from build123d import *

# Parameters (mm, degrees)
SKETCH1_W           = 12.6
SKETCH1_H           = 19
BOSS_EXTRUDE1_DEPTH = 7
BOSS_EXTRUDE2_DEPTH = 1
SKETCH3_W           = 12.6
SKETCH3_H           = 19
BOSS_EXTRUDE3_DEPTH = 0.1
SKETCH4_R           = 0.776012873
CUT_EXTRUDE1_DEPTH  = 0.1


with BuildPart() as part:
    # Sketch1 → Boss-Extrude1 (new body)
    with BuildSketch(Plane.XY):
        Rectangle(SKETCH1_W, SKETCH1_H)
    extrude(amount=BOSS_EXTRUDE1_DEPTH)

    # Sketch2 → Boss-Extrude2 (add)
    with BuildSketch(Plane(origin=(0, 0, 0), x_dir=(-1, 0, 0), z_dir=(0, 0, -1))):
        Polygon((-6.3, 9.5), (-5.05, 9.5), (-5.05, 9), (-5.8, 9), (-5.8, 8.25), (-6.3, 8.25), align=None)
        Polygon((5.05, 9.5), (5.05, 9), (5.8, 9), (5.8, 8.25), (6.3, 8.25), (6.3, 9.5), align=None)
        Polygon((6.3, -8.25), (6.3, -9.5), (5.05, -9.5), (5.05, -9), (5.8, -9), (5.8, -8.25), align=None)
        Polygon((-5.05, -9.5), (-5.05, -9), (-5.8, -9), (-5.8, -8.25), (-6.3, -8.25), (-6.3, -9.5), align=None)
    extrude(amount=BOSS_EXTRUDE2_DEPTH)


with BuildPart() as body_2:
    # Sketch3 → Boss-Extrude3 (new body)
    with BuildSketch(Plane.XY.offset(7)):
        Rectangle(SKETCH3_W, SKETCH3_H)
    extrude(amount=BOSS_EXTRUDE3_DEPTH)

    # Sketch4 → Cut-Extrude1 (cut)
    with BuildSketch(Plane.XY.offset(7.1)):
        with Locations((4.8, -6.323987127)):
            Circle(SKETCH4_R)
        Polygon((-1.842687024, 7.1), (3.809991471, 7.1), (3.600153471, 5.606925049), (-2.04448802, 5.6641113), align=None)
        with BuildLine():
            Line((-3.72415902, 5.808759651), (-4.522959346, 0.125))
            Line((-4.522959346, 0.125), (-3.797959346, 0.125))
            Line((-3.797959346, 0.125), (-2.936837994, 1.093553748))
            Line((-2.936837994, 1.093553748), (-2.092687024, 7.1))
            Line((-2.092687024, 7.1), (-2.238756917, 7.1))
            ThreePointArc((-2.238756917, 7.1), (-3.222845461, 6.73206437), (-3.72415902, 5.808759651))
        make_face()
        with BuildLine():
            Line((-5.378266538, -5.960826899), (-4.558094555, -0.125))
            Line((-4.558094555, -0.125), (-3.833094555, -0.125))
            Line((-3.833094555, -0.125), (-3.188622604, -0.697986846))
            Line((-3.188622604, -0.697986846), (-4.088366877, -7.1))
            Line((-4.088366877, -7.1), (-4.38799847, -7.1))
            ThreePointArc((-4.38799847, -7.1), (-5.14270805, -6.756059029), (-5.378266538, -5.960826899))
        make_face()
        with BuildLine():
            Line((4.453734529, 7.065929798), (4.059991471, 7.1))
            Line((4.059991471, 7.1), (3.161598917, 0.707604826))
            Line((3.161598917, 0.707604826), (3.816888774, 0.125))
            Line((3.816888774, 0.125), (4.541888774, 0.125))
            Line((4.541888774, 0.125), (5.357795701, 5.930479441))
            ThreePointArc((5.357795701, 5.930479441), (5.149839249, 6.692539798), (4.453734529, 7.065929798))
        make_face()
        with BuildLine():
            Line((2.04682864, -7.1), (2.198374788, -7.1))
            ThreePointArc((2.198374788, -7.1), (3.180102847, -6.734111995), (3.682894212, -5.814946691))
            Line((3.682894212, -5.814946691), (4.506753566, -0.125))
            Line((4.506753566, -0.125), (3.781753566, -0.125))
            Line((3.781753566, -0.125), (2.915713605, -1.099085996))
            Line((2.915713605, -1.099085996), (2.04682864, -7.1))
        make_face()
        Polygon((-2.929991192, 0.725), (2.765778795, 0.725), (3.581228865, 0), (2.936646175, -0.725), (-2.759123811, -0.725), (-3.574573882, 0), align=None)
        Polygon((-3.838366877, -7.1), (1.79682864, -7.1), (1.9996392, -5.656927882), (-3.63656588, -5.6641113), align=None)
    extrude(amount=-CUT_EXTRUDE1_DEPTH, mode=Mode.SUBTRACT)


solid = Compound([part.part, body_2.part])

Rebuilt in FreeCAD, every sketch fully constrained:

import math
import FreeCAD as App
import Part
import Sketcher
Q = App.Units.Quantity

doc = App.newDocument("Part")
body = doc.addObject("PartDesign::Body", "Body")

sketch1 = doc.addObject("Sketcher::SketchObject", "Sketch")
body.addObject(sketch1)
sketch1.AttachmentSupport = (doc.XY_Plane, [""])
sketch1.MapMode = "FlatFace"
sketch1.addGeometry([
    Part.LineSegment(App.Vector(-6, 10, 0), App.Vector(-6, -10, 0)),
    Part.LineSegment(App.Vector(-6, -10, 0), App.Vector(6, -10, 0)),
    Part.LineSegment(App.Vector(6, -10, 0), App.Vector(6, 10, 0)),
    Part.LineSegment(App.Vector(6, 10, 0), App.Vector(-6, 10, 0)),
], False)
sketch1.addConstraint([
    Sketcher.Constraint("Coincident", 0, 2, 1, 1),
    Sketcher.Constraint("Coincident", 1, 2, 2, 1),
    Sketcher.Constraint("Coincident", 2, 2, 3, 1),
    Sketcher.Constraint("Coincident", 3, 2, 0, 1),
    Sketcher.Constraint("Vertical", 0),
    Sketcher.Constraint("Horizontal", 1),
    Sketcher.Constraint("Vertical", 2),
    Sketcher.Constraint("Horizontal", 3),
    Sketcher.Constraint("Symmetric", 0, 2, 2, 2, -1, 1),
    Sketcher.Constraint("DistanceY", 0, 2, 0, 1, 19.0),
    Sketcher.Constraint("DistanceX", 1, 1, 1, 2, 12.6),
])
pad1 = doc.addObject("PartDesign::Pad", "Pad")
body.addObject(pad1)
pad1.Profile = sketch1
pad1.Length = 7

sketch2 = doc.addObject("Sketcher::SketchObject", "Sketch001")
body.addObject(sketch2)
sketch2.AttachmentSupport = (doc.XY_Plane, [""])
sketch2.MapMode = "FlatFace"
sketch2.addGeometry([
    Part.LineSegment(App.Vector(5, 9.5, 0), App.Vector(6.3, 9.5, 0)),
    Part.LineSegment(App.Vector(6.3, 9.5, 0), App.Vector(6.3, 8.2, 0)),
    Part.LineSegment(App.Vector(6.3, 8.2, 0), App.Vector(5.8, 8.2, 0)),
    Part.LineSegment(App.Vector(5.8, 8.2, 0), App.Vector(5.8, 9, 0)),
    Part.LineSegment(App.Vector(5.8, 9, 0), App.Vector(5, 9, 0)),
    Part.LineSegment(App.Vector(5, 9, 0), App.Vector(5, 9.5, 0)),
    Part.LineSegment(App.Vector(-5, 9.5, 0), App.Vector(-5, 9, 0)),
    Part.LineSegment(App.Vector(-5, 9, 0), App.Vector(-5.8, 9, 0)),
    Part.LineSegment(App.Vector(-5.8, 9, 0), App.Vector(-5.8, 8.2, 0)),
    Part.LineSegment(App.Vector(-5.8, 8.2, 0), App.Vector(-6.3, 8.2, 0)),
    Part.LineSegment(App.Vector(-6.3, 8.2, 0), App.Vector(-6.3, 9.5, 0)),
    Part.LineSegment(App.Vector(-6.3, 9.5, 0), App.Vector(-5, 9.5, 0)),
    Part.LineSegment(App.Vector(-6.3, -9.5, 0), App.Vector(-6.3, -8.2, 0)),
    Part.LineSegment(App.Vector(-6.3, -8.2, 0), App.Vector(-5.8, -8.2, 0)),
    Part.LineSegment(App.Vector(-5.8, -8.2, 0), App.Vector(-5.8, -9, 0)),
    Part.LineSegment(App.Vector(-5.8, -9, 0), App.Vector(-5, -9, 0)),
    Part.LineSegment(App.Vector(-5, -9, 0), App.Vector(-5, -9.5, 0)),
    Part.LineSegment(App.Vector(-5, -9.5, 0), App.Vector(-6.3, -9.5, 0)),
    Part.LineSegment(App.Vector(5, -9.5, 0), App.Vector(5, -9, 0)),
    Part.LineSegment(App.Vector(5, -9, 0), App.Vector(5.8, -9, 0)),
    Part.LineSegment(App.Vector(5.8, -9, 0), App.Vector(5.8, -8.2, 0)),
    Part.LineSegment(App.Vector(5.8, -8.2, 0), App.Vector(6.3, -8.2, 0)),
    Part.LineSegment(App.Vector(6.3, -8.2, 0), App.Vector(6.3, -9.5, 0)),
    Part.LineSegment(App.Vector(6.3, -9.5, 0), App.Vector(5, -9.5, 0)),
], False)
sketch2.addConstraint([
    Sketcher.Constraint("Coincident", 0, 2, 1, 1),
    Sketcher.Constraint("Coincident", 1, 2, 2, 1),
    Sketcher.Constraint("Coincident", 2, 2, 3, 1),
    Sketcher.Constraint("Coincident", 3, 2, 4, 1),
    Sketcher.Constraint("Coincident", 4, 2, 5, 1),
    Sketcher.Constraint("Coincident", 5, 2, 0, 1),
    Sketcher.Constraint("Coincident", 6, 2, 7, 1),
    Sketcher.Constraint("Coincident", 7, 2, 8, 1),
    Sketcher.Constraint("Coincident", 8, 2, 9, 1),
    Sketcher.Constraint("Coincident", 9, 2, 10, 1),
    Sketcher.Constraint("Coincident", 10, 2, 11, 1),
    Sketcher.Constraint("Coincident", 11, 2, 6, 1),
    Sketcher.Constraint("Coincident", 12, 2, 13, 1),
    Sketcher.Constraint("Coincident", 13, 2, 14, 1),
    Sketcher.Constraint("Coincident", 14, 2, 15, 1),
    Sketcher.Constraint("Coincident", 15, 2, 16, 1),
    Sketcher.Constraint("Coincident", 16, 2, 17, 1),
    Sketcher.Constraint("Coincident", 17, 2, 12, 1),
    Sketcher.Constraint("Coincident", 18, 2, 19, 1),
    Sketcher.Constraint("Coincident", 19, 2, 20, 1),
    Sketcher.Constraint("Coincident", 20, 2, 21, 1),
    Sketcher.Constraint("Coincident", 21, 2, 22, 1),
    Sketcher.Constraint("Coincident", 22, 2, 23, 1),
    Sketcher.Constraint("Coincident", 23, 2, 18, 1),
    Sketcher.Constraint("Horizontal", 0),
    Sketcher.Constraint("Vertical", 1),
    Sketcher.Constraint("Horizontal", 2),
    Sketcher.Constraint("Vertical", 3),
    Sketcher.Constraint("Horizontal", 4),
    Sketcher.Constraint("Vertical", 5),
    Sketcher.Constraint("Vertical", 6),
    Sketcher.Constraint("Horizontal", 7),
    Sketcher.Constraint("Vertical", 8),
    Sketcher.Constraint("Horizontal", 9),
    Sketcher.Constraint("Vertical", 10),
    Sketcher.Constraint("Horizontal", 11),
    Sketcher.Constraint("Vertical", 12),
    Sketcher.Constraint("Horizontal", 13),
    Sketcher.Constraint("Vertical", 14),
    Sketcher.Constraint("Horizontal", 15),
    Sketcher.Constraint("Vertical", 16),
    Sketcher.Constraint("Horizontal", 17),
    Sketcher.Constraint("Vertical", 18),
    Sketcher.Constraint("Horizontal", 19),
    Sketcher.Constraint("Vertical", 20),
    Sketcher.Constraint("Horizontal", 21),
    Sketcher.Constraint("Vertical", 22),
    Sketcher.Constraint("Horizontal", 23),
    Sketcher.Constraint("Symmetric", 1, 2, 12, 2, -1, 1),
    Sketcher.Constraint("Symmetric", 3, 2, 14, 2, -1, 1),
    Sketcher.Constraint("Symmetric", 5, 2, 16, 2, -1, 1),
    Sketcher.Constraint("Symmetric", 6, 2, 18, 2, -1, 1),
    Sketcher.Constraint("Symmetric", 8, 2, 20, 2, -1, 1),
    Sketcher.Constraint("Symmetric", 10, 2, 22, 2, -1, 1),
    Sketcher.Constraint("Symmetric", 4, 2, 6, 2, -2),
    Sketcher.Constraint("Symmetric", 2, 2, 8, 2, -2),
    Sketcher.Constraint("Symmetric", 0, 2, 10, 2, -2),
    Sketcher.Constraint("Equal", 23, 1),
    Sketcher.Constraint("Equal", 19, 3),
    Sketcher.Constraint("DistanceX", 2, 2, 2, 1, 0.5),
    Sketcher.Constraint("DistanceY", -1, 1, 3, 2, 9.0),
    Sketcher.Constraint("DistanceX", 0, 1, 0, 2, 1.25),
    Sketcher.Constraint("DistanceX", -1, 1, 0, 2, 6.3),
])
pad2 = doc.addObject("PartDesign::Pad", "Pad001")
body.addObject(pad2)
pad2.Profile = sketch2
pad2.Length = 1
pad2.Reversed = True
body2 = doc.addObject("PartDesign::Body", "Body001")

sketch3 = doc.addObject("Sketcher::SketchObject", "Sketch002")
body2.addObject(sketch3)
sketch3.AttachmentSupport = (doc.getObject("XY_Plane001"), [""])
sketch3.MapMode = "FlatFace"
sketch3.AttachmentOffset = App.Placement(App.Vector(0, 0, 7), App.Rotation())
sketch3.addGeometry([
    Part.LineSegment(App.Vector(-6, 10, 0), App.Vector(-6, -10, 0)),
    Part.LineSegment(App.Vector(-6, -10, 0), App.Vector(6, -10, 0)),
    Part.LineSegment(App.Vector(6, -10, 0), App.Vector(6, 10, 0)),
    Part.LineSegment(App.Vector(6, 10, 0), App.Vector(-6, 10, 0)),
], False)
sketch3.addConstraint([
    Sketcher.Constraint("Coincident", 0, 2, 1, 1),
    Sketcher.Constraint("Coincident", 1, 2, 2, 1),
    Sketcher.Constraint("Coincident", 2, 2, 3, 1),
    Sketcher.Constraint("Coincident", 3, 2, 0, 1),
    Sketcher.Constraint("Vertical", 0),
    Sketcher.Constraint("Horizontal", 1),
    Sketcher.Constraint("Vertical", 2),
    Sketcher.Constraint("Horizontal", 3),
    Sketcher.Constraint("Symmetric", 0, 2, 2, 2, -1, 1),
    Sketcher.Constraint("DistanceY", 0, 2, 0, 1, 19.0),
    Sketcher.Constraint("DistanceX", 1, 1, 1, 2, 12.6),
])
pad3 = doc.addObject("PartDesign::Pad", "Pad002")
body2.addObject(pad3)
pad3.Profile = sketch3
pad3.Length = 0.1

sketch4 = doc.addObject("Sketcher::SketchObject", "Sketch003")
body2.addObject(sketch4)
sketch4.AttachmentSupport = (doc.getObject("XY_Plane001"), [""])
sketch4.MapMode = "FlatFace"
sketch4.AttachmentOffset = App.Placement(App.Vector(0, 0, 7.1), App.Rotation())
sketch4.addGeometry([
    Part.Circle(App.Vector(4.8, -6.32, 0), App.Vector(0, 0, 1), 0.78),
    Part.LineSegment(App.Vector(3.81, 7.1, 0), App.Vector(-1.84, 7.1, 0)),
    Part.LineSegment(App.Vector(-1.84, 7.1, 0), App.Vector(-2.04, 5.66, 0)),
    Part.LineSegment(App.Vector(-2.04, 5.66, 0), App.Vector(3.6, 5.61, 0)),
    Part.LineSegment(App.Vector(3.6, 5.61, 0), App.Vector(3.81, 7.1, 0)),
    Part.LineSegment(App.Vector(-3.72, 5.81, 0), App.Vector(-4.52, 0.12, 0)),
    Part.LineSegment(App.Vector(-4.52, 0.12, 0), App.Vector(-3.8, 0.12, 0)),
    Part.LineSegment(App.Vector(-3.8, 0.12, 0), App.Vector(-2.94, 1.09, 0)),
    Part.LineSegment(App.Vector(-2.94, 1.09, 0), App.Vector(-2.09, 7.1, 0)),
    Part.LineSegment(App.Vector(-2.09, 7.1, 0), App.Vector(-2.24, 7.1, 0)),
    Part.ArcOfCircle(Part.Circle(App.Vector(-2.24, 5.6, 0), App.Vector(0, 0, 1), 1.5), math.radians(90), math.radians(172)),
    Part.LineSegment(App.Vector(-4.56, -0.12, 0), App.Vector(-5.38, -5.96, 0)),
    Part.ArcOfCircle(Part.Circle(App.Vector(-4.39, -6.1, 0), App.Vector(0, 0, 1), 1), math.radians(172), math.radians(270)),
    Part.LineSegment(App.Vector(-4.39, -7.1, 0), App.Vector(-4.09, -7.1, 0)),
    Part.LineSegment(App.Vector(-4.09, -7.1, 0), App.Vector(-3.19, -0.7, 0)),
    Part.LineSegment(App.Vector(-3.19, -0.7, 0), App.Vector(-3.83, -0.12, 0)),
    Part.LineSegment(App.Vector(-3.83, -0.12, 0), App.Vector(-4.56, -0.12, 0)),
    Part.LineSegment(App.Vector(4.45, 7.07, 0), App.Vector(4.06, 7.1, 0)),
    Part.LineSegment(App.Vector(4.06, 7.1, 0), App.Vector(3.16, 0.71, 0)),
    Part.LineSegment(App.Vector(3.16, 0.71, 0), App.Vector(3.82, 0.12, 0)),
    Part.LineSegment(App.Vector(3.82, 0.12, 0), App.Vector(4.54, 0.12, 0)),
    Part.LineSegment(App.Vector(4.54, 0.12, 0), App.Vector(5.36, 5.93, 0)),
    Part.ArcOfCircle(Part.Circle(App.Vector(4.37, 6.07, 0), App.Vector(0, 0, 1), 1), math.radians(-8), math.radians(85)),
    Part.LineSegment(App.Vector(2.05, -7.1, 0), App.Vector(2.2, -7.1, 0)),
    Part.ArcOfCircle(Part.Circle(App.Vector(2.2, -5.6, 0), App.Vector(0, 0, 1), 1.5), math.radians(-90), math.radians(-8)),
    Part.LineSegment(App.Vector(3.68, -5.81, 0), App.Vector(4.51, -0.12, 0)),
    Part.LineSegment(App.Vector(4.51, -0.12, 0), App.Vector(3.78, -0.12, 0)),
    Part.LineSegment(App.Vector(3.78, -0.12, 0), App.Vector(2.92, -1.1, 0)),
    Part.LineSegment(App.Vector(2.92, -1.1, 0), App.Vector(2.05, -7.1, 0)),
    Part.LineSegment(App.Vector(2.77, 0.72, 0), App.Vector(-2.93, 0.72, 0)),
    Part.LineSegment(App.Vector(-2.93, 0.72, 0), App.Vector(-3.57, 0, 0)),
    Part.LineSegment(App.Vector(-3.57, 0, 0), App.Vector(-2.76, -0.72, 0)),
    Part.LineSegment(App.Vector(-2.76, -0.72, 0), App.Vector(2.94, -0.72, 0)),
    Part.LineSegment(App.Vector(2.94, -0.72, 0), App.Vector(3.58, 0, 0)),
    Part.LineSegment(App.Vector(3.58, 0, 0), App.Vector(2.77, 0.72, 0)),
    Part.LineSegment(App.Vector(-3.84, -7.1, 0), App.Vector(1.8, -7.1, 0)),
    Part.LineSegment(App.Vector(1.8, -7.1, 0), App.Vector(2, -5.66, 0)),
    Part.LineSegment(App.Vector(2, -5.66, 0), App.Vector(-3.64, -5.66, 0)),
    Part.LineSegment(App.Vector(-3.64, -5.66, 0), App.Vector(-3.84, -7.1, 0)),
], False)
sketch4.addConstraint([
    Sketcher.Constraint("Coincident", 1, 2, 2, 1),
    Sketcher.Constraint("Coincident", 2, 2, 3, 1),
    Sketcher.Constraint("Coincident", 3, 2, 4, 1),
    Sketcher.Constraint("Coincident", 4, 2, 1, 1),
    Sketcher.Constraint("Coincident", 5, 2, 6, 1),
    Sketcher.Constraint("Coincident", 6, 2, 7, 1),
    Sketcher.Constraint("Coincident", 7, 2, 8, 1),
    Sketcher.Constraint("Coincident", 8, 2, 9, 1),
    Sketcher.Constraint("Tangent", 9, 2, 10, 1),
    Sketcher.Constraint("Tangent", 10, 2, 5, 1),
    Sketcher.Constraint("Tangent", 11, 2, 12, 1),
    Sketcher.Constraint("Tangent", 12, 2, 13, 1),
    Sketcher.Constraint("Coincident", 13, 2, 14, 1),
    Sketcher.Constraint("Coincident", 14, 2, 15, 1),
    Sketcher.Constraint("Coincident", 15, 2, 16, 1),
    Sketcher.Constraint("Coincident", 16, 2, 11, 1),
    Sketcher.Constraint("Coincident", 17, 2, 18, 1),
    Sketcher.Constraint("Coincident", 18, 2, 19, 1),
    Sketcher.Constraint("Coincident", 19, 2, 20, 1),
    Sketcher.Constraint("Coincident", 20, 2, 21, 1),
    Sketcher.Constraint("Tangent", 21, 2, 22, 1),
    Sketcher.Constraint("Tangent", 22, 2, 17, 1),
    Sketcher.Constraint("Tangent", 23, 2, 24, 1),
    Sketcher.Constraint("Tangent", 24, 2, 25, 1),
    Sketcher.Constraint("Coincident", 25, 2, 26, 1),
    Sketcher.Constraint("Coincident", 26, 2, 27, 1),
    Sketcher.Constraint("Coincident", 27, 2, 28, 1),
    Sketcher.Constraint("Coincident", 28, 2, 23, 1),
    Sketcher.Constraint("Coincident", 29, 2, 30, 1),
    Sketcher.Constraint("Coincident", 30, 2, 31, 1),
    Sketcher.Constraint("Coincident", 31, 2, 32, 1),
    Sketcher.Constraint("Coincident", 32, 2, 33, 1),
    Sketcher.Constraint("Coincident", 33, 2, 34, 1),
    Sketcher.Constraint("Coincident", 34, 2, 29, 1),
    Sketcher.Constraint("Coincident", 35, 2, 36, 1),
    Sketcher.Constraint("Coincident", 36, 2, 37, 1),
    Sketcher.Constraint("Coincident", 37, 2, 38, 1),
    Sketcher.Constraint("Coincident", 38, 2, 35, 1),
    Sketcher.Constraint("Horizontal", 1),
    Sketcher.Constraint("Horizontal", 6),
    Sketcher.Constraint("Horizontal", 9),
    Sketcher.Constraint("Horizontal", 13),
    Sketcher.Constraint("Horizontal", 16),
    Sketcher.Constraint("Horizontal", 20),
    Sketcher.Constraint("Horizontal", 23),
    Sketcher.Constraint("Horizontal", 26),
    Sketcher.Constraint("Horizontal", 29),
    Sketcher.Constraint("Horizontal", 32),
    Sketcher.Constraint("Horizontal", 35),
    Sketcher.Constraint("Equal", 12, 22),
    Sketcher.Constraint("Equal", 10, 24),
    Sketcher.Constraint("PointOnObject", 30, 2, -1),
    Sketcher.Constraint("PointOnObject", 33, 2, -1),
    Sketcher.Constraint("Parallel", 2, 4),
    Sketcher.Constraint("Parallel", 4, 5),
    Sketcher.Constraint("Parallel", 5, 8),
    Sketcher.Constraint("Parallel", 8, 11),
    Sketcher.Constraint("Parallel", 11, 14),
    Sketcher.Constraint("Perpendicular", 7, 15),
    Sketcher.Constraint("Parallel", 14, 18),
    Sketcher.Constraint("Parallel", 15, 19),
    Sketcher.Constraint("Parallel", 18, 21),
    Sketcher.Constraint("Perpendicular", 19, 27),
    Sketcher.Constraint("Parallel", 25, 28),
    Sketcher.Constraint("Parallel", 27, 30),
    Sketcher.Constraint("Perpendicular", 30, 31),
    Sketcher.Constraint("Perpendicular", 31, 33),
    Sketcher.Constraint("Perpendicular", 33, 34),
    Sketcher.Constraint("Parallel", 21, 36),
    Sketcher.Constraint("Parallel", 36, 38),
    Sketcher.Constraint("Horizontal", 4, 2, 8, 2),
    Sketcher.Constraint("Horizontal", 9, 2, 17, 2),
    Sketcher.Constraint("Horizontal", 6, 2, 19, 2),
    Sketcher.Constraint("Horizontal", 13, 2, 23, 2),
    Sketcher.Constraint("Horizontal", 16, 2, 25, 2),
    Sketcher.Constraint("Horizontal", 28, 2, 35, 2),
    Sketcher.Constraint("Equal", 6, 16),
    Sketcher.Constraint("Equal", 16, 20),
    Sketcher.Constraint("Equal", 20, 26),
    Sketcher.Constraint("Equal", 29, 32),
    Sketcher.Constraint("Equal", 2, 38),
    Sketcher.Constraint("Radius", 12, 1.0),
    Sketcher.Constraint("Radius", 10, 1.5),
    Sketcher.Constraint("Angle", 2, Q("-98 deg")),
    Sketcher.Constraint("DistanceX", -1, 1, 0, 3, 4.8),
    Sketcher.Constraint("DistanceY", -1, 1, 10, 3, 5.6),
    Sketcher.Constraint("DistanceY", 12, 3, -1, 1, 6.1),
    Sketcher.Constraint("DistanceY", 6, 2, 29, 2, 0.6),
    Sketcher.Constraint("DistanceY", 31, 2, 15, 2, 0.6),
    Sketcher.Constraint("Distance", 2, 1.45),
    Sketcher.Constraint("DistanceX", 6, 1, 6, 2, 0.725),
    Sketcher.Constraint("DistanceX", 8, 2, 1, 2, 0.25),
    Sketcher.Constraint("DistanceY", 15, 2, 6, 2, 0.25),
    Sketcher.Constraint("DistanceX", 4, 2, 17, 2, 0.25),
    Sketcher.Constraint("DistanceX", 35, 2, 28, 2, 0.25),
    Sketcher.Constraint("DistanceX", 13, 2, 38, 2, 0.25),
    Sketcher.Constraint("Diameter", 0, 1.552026),
    Sketcher.Constraint("DistanceX", 12, 3, -1, 1, 4.387998),
    Sketcher.Constraint("DistanceX", 1, 2, 1, 1, 5.652678),
    Sketcher.Constraint("DistanceX", 9, 2, 9, 1, 0.14607),
    Sketcher.Constraint("DistanceX", 13, 1, 13, 2, 0.299632),
    Sketcher.Constraint("DistanceX", 29, 2, 29, 1, 5.69577),
    Sketcher.Constraint("DistanceX", -1, 1, 18, 2, 3.161599),
    Sketcher.Constraint("DistanceX", 3, 2, 25, 2, 0.9066),
    Sketcher.Constraint("DistanceX", 14, 2, 31, 2, 0.429499),
    Sketcher.Constraint("Distance", 3, 5.644931),
    Sketcher.Constraint("Distance", 14, 6.464929),
    Sketcher.Constraint("Distance", 19, 0.876831),
    Sketcher.Constraint("Distance", 25, 5.749281),
    Sketcher.Constraint("Distance", 28, 6.063492),
    Sketcher.Constraint("Distance", 37, 5.63621),
    Sketcher.Constraint("DistanceY", -1, 1, 21, 2, 5.930479),
    Sketcher.Constraint("DistanceY", 0, 3, 22, 3, 12.39364),
])
pocket1 = doc.addObject("PartDesign::Pocket", "Pocket")
body2.addObject(pocket1)
pocket1.Profile = sketch4
pocket1.Length = 0.1

doc.recompute()
